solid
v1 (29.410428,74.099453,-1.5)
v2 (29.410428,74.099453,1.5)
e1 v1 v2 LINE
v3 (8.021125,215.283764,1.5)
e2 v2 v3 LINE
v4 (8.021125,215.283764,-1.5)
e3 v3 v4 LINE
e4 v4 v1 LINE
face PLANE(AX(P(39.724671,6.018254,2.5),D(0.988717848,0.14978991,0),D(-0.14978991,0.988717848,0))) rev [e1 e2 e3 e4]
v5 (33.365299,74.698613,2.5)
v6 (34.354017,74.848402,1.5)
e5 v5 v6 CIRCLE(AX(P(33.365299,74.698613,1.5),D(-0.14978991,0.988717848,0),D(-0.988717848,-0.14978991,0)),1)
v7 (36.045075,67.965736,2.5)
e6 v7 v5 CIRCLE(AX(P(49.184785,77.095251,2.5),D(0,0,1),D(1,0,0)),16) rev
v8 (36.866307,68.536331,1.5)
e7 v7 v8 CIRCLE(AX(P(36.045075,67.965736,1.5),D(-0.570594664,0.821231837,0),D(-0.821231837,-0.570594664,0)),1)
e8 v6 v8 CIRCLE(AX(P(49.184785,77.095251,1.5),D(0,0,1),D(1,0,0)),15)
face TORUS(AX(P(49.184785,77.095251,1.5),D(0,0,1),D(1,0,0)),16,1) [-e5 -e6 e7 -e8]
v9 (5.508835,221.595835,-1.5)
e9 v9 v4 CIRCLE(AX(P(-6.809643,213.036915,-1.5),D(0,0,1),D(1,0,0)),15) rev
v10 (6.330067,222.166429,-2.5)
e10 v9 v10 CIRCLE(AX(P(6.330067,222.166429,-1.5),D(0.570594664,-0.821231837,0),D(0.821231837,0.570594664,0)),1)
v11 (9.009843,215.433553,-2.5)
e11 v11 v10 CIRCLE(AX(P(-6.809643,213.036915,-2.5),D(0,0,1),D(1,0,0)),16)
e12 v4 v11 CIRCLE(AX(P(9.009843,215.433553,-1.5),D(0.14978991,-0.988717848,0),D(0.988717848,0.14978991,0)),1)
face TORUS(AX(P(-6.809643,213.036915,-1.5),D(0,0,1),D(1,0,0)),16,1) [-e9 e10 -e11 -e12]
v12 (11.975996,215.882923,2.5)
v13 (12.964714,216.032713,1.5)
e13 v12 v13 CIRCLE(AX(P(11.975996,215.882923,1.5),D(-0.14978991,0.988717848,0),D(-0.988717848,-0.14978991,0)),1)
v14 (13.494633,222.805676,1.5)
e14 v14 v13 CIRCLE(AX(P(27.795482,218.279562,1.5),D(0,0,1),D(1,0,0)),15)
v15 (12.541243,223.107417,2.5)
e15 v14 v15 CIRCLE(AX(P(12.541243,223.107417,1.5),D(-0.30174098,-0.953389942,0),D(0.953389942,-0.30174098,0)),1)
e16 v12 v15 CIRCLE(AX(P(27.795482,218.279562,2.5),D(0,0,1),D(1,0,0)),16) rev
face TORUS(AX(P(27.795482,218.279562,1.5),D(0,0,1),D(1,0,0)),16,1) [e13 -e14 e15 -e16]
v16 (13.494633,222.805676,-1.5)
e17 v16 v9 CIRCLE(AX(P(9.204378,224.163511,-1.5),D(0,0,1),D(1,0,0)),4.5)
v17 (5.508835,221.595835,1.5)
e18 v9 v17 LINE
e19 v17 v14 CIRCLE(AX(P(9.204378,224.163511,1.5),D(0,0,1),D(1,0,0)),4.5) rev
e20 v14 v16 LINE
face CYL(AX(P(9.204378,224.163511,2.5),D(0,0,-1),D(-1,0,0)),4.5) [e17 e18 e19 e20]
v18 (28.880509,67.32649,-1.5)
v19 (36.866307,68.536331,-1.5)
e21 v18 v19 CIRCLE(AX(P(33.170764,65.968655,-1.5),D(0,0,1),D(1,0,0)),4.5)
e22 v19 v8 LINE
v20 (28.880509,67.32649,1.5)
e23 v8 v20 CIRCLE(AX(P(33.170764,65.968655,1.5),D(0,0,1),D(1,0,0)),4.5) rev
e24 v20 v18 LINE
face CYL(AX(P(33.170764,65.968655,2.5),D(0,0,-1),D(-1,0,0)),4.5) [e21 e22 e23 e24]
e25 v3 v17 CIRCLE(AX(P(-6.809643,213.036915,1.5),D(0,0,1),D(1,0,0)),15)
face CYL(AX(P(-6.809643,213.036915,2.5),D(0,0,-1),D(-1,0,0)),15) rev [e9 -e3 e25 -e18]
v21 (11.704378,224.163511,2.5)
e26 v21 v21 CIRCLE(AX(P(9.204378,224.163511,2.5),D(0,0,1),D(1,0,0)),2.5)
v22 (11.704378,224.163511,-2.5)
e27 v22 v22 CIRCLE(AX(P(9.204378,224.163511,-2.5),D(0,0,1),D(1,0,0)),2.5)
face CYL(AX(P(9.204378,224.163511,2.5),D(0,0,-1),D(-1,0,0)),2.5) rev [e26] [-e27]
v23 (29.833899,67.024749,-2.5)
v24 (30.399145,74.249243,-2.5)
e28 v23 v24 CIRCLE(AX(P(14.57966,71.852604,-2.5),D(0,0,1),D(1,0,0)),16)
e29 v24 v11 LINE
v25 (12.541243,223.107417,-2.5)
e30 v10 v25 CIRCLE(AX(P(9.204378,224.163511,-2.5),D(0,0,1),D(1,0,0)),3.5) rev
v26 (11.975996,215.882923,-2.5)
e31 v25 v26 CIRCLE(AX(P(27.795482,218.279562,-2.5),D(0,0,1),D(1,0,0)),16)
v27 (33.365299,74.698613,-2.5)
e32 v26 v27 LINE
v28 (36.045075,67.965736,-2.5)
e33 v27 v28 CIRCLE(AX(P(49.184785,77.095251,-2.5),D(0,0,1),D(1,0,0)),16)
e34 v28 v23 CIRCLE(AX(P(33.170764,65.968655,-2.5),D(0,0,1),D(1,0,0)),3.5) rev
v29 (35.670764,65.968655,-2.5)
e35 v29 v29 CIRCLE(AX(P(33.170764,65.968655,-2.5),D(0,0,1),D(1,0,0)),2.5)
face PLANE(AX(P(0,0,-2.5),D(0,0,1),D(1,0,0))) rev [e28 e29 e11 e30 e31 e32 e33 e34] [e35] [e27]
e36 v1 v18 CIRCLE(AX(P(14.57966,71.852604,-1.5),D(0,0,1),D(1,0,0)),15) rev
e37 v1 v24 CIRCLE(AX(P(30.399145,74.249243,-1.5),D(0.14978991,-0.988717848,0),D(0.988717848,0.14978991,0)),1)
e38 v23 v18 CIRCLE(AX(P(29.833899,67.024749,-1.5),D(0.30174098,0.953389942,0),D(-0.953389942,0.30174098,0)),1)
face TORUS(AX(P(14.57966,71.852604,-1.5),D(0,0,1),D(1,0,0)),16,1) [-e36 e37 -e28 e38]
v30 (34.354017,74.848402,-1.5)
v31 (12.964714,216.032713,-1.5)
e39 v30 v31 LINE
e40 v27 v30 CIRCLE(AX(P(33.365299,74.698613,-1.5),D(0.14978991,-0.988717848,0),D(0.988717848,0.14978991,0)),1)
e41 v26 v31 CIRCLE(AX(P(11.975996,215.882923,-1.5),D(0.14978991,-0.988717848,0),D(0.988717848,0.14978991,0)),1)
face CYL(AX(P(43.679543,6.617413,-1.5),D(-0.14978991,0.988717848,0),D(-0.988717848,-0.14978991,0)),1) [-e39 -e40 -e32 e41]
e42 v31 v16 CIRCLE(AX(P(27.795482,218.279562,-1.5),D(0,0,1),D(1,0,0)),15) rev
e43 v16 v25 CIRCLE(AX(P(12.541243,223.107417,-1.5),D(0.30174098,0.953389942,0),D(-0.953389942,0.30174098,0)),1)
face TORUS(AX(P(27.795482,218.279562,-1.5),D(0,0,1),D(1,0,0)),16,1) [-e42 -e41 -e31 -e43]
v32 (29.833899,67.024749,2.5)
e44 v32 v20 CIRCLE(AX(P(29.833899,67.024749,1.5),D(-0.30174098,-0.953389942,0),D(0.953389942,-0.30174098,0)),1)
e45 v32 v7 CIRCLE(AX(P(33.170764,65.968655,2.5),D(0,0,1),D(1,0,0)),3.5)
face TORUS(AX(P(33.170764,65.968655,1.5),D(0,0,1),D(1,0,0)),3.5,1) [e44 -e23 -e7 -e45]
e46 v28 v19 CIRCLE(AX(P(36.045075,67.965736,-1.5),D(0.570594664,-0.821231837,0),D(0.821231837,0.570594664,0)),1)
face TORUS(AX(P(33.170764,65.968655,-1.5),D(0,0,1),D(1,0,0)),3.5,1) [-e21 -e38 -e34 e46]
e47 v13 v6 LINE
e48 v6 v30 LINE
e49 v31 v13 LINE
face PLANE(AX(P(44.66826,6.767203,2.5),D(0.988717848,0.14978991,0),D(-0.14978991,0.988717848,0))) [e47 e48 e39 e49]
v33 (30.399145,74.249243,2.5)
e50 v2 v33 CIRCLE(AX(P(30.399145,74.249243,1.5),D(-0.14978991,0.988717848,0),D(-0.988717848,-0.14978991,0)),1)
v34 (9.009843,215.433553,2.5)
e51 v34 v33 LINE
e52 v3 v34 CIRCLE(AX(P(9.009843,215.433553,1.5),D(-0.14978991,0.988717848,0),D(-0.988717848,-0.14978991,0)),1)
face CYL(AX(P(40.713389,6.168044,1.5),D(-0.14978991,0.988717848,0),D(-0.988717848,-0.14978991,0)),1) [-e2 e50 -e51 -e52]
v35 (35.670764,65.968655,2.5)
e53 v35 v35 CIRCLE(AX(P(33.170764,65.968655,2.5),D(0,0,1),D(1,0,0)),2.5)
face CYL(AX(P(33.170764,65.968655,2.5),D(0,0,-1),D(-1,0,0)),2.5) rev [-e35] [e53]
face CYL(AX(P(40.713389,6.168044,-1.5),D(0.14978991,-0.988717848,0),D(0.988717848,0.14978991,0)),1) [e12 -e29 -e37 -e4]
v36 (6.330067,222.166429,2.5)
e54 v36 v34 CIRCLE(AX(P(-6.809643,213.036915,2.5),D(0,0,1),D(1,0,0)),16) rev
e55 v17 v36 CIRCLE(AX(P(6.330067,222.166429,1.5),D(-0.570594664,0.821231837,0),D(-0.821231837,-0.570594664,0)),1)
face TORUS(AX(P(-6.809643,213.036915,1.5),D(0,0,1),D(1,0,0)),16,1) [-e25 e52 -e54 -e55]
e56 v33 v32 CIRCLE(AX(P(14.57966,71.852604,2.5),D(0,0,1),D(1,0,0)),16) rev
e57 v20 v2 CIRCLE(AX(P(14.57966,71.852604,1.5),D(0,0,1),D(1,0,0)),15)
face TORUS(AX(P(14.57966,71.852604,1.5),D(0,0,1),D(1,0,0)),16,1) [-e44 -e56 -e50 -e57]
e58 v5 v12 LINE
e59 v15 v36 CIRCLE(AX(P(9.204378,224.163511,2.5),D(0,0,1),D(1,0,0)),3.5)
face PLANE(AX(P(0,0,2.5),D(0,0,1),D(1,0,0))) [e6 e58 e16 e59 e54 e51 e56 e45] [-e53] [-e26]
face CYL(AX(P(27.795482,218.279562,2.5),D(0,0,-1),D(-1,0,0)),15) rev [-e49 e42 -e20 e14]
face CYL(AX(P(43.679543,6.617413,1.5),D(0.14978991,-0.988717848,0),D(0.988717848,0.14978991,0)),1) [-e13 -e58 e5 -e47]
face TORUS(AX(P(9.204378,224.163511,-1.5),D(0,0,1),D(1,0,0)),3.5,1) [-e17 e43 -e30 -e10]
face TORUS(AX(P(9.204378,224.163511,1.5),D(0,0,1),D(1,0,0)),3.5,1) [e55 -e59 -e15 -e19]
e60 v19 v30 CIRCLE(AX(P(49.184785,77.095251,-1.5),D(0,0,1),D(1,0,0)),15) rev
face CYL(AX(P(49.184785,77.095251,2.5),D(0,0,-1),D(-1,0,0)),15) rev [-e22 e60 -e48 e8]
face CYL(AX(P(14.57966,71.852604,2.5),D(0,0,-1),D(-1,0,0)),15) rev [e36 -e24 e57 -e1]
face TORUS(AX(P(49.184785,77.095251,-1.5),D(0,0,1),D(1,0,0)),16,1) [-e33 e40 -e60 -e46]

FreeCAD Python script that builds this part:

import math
import FreeCAD as App
import Part
import Sketcher

V = App.Vector


def edges_at(feature, points):
    """Names of the edges that pass closest to the given points."""
    edges = feature.Shape.Edges
    near = lambda p: min(range(len(edges)), key=lambda i: edges[i].distToShape(Part.Vertex(*p))[0])
    return sorted({f"Edge{near(p) + 1}" for p in points})

doc = App.newDocument("Part")
body = doc.addObject("PartDesign::Body", "Body")

# Sketch on XY plane
sketch1 = body.newObject("Sketcher::SketchObject", "Sketch")
sketch1.AttachmentSupport = (doc.getObject("XY_Plane"), [""])
sketch1.MapMode = "FlatFace"
sketch1.addGeometry([
    Part.ArcOfCircle(Part.Circle(V(33.17, 65.97, 0), V(0, 0, 1), 2.5), math.radians(99), math.radians(189)),  # 0
    Part.LineSegment(V(32.8, 68.44, 0), V(9.58, 221.69, 0)),  # 1
    Part.ArcOfCircle(Part.Circle(V(9.2, 224.16, 0), V(0, 0, 1), 2.5), math.radians(-171), math.radians(-81)),  # 2
    Part.LineSegment(V(6.73, 223.79, 0), V(7.29, 220.09, 0)),  # 3
    Part.LineSegment(V(7.29, 220.09, 0), V(30.14, 69.29, 0)),  # 4
    Part.LineSegment(V(30.14, 69.29, 0), V(30.7, 65.59, 0)),  # 5
    Part.LineSegment(V(9.58, 221.69, 0), V(32.8, 68.44, 0)),  # 6
    Part.ArcOfCircle(Part.Circle(V(33.17, 65.97, 0), V(0, 0, 1), 2.5), math.radians(9), math.radians(99)),  # 7
    Part.LineSegment(V(35.64, 66.34, 0), V(35.08, 70.04, 0)),  # 8
    Part.LineSegment(V(35.08, 70.04, 0), V(12.24, 220.84, 0)),  # 9
    Part.LineSegment(V(12.24, 220.84, 0), V(11.68, 224.54, 0)),  # 10
    Part.ArcOfCircle(Part.Circle(V(9.2, 224.16, 0), V(0, 0, 1), 2.5), math.radians(0), math.radians(8.61)),  # 11
    Part.ArcOfCircle(Part.Circle(V(9.2, 224.16, 0), V(0, 0, 1), 2.5), math.radians(-81), math.radians(0)),  # 12
    Part.LineSegment(V(35.08, 70.04, 0), V(35.64, 66.34, 0)),  # 13
    Part.ArcOfCircle(Part.Circle(V(33.17, 65.97, 0), V(0, 0, 1), 2.5), math.radians(0), math.radians(8.61)),  # 14
    Part.ArcOfCircle(Part.Circle(V(33.17, 65.97, 0), V(0, 0, 1), 2.5), math.radians(-171), math.radians(0)),  # 15
    Part.LineSegment(V(30.7, 65.59, 0), V(30.14, 69.29, 0)),  # 16
    Part.ArcOfCircle(Part.Circle(V(33.17, 65.97, 0), V(0, 0, 1), 4.5), math.radians(132), math.radians(425)),  # 17
    Part.LineSegment(V(7.29, 220.09, 0), V(6.73, 223.79, 0)),  # 18
    Part.ArcOfCircle(Part.Circle(V(9.2, 224.16, 0), V(0, 0, 1), 2.5), math.radians(9), math.radians(189)),  # 19
    Part.LineSegment(V(11.68, 224.54, 0), V(12.24, 220.84, 0)),  # 20
    Part.ArcOfCircle(Part.Circle(V(9.2, 224.16, 0), V(0, 0, 1), 4.5), math.radians(-48), math.radians(245)),  # 21
], False)
sketch1.addConstraint([
    Sketcher.Constraint("Coincident", 0, 1, 1, 1),
    Sketcher.Constraint("Coincident", 1, 2, 2, 2),
    Sketcher.Constraint("Tangent", 2, 1, 3, 1),
    Sketcher.Constraint("Coincident", 3, 2, 4, 1),
    Sketcher.Constraint("Coincident", 4, 2, 5, 1),
    Sketcher.Constraint("Tangent", 5, 2, 0, 2),
    Sketcher.Constraint("Coincident", 6, 2, 7, 2),
    Sketcher.Constraint("Tangent", 7, 1, 8, 1),
    Sketcher.Constraint("Coincident", 8, 2, 9, 1),
    Sketcher.Constraint("Coincident", 9, 2, 10, 1),
    Sketcher.Constraint("Tangent", 10, 2, 11, 2),
    Sketcher.Constraint("Tangent", 11, 1, 12, 2),
    Sketcher.Constraint("Coincident", 12, 1, 6, 1),
    Sketcher.Constraint("Tangent", 13, 2, 14, 2),
    Sketcher.Constraint("Tangent", 14, 1, 15, 2),
    Sketcher.Constraint("Tangent", 15, 1, 16, 1),
    Sketcher.Constraint("Coincident", 16, 2, 17, 1),
    Sketcher.Constraint("Coincident", 17, 2, 13, 1),
    Sketcher.Constraint("Tangent", 18, 2, 19, 2),
    Sketcher.Constraint("Tangent", 19, 1, 20, 1),
    Sketcher.Constraint("Coincident", 20, 2, 21, 1),
    Sketcher.Constraint("Coincident", 21, 2, 18, 1),
    Sketcher.Constraint("Coincident", 7, 3, 0, 3),
    Sketcher.Constraint("Coincident", 11, 3, 2, 3),
    Sketcher.Constraint("Coincident", 14, 3, 0, 3),
    Sketcher.Constraint("Coincident", 17, 3, 0, 3),
    Sketcher.Constraint("Coincident", 19, 3, 2, 3),
    Sketcher.Constraint("Coincident", 21, 3, 2, 3),
    Sketcher.Constraint("Coincident", 6, 2, 0, 1),
    Sketcher.Constraint("Coincident", 12, 1, 1, 2),
    Sketcher.Constraint("Coincident", 13, 2, 7, 1),
    Sketcher.Constraint("Coincident", 15, 1, 5, 2),
    Sketcher.Constraint("Coincident", 18, 2, 2, 1),
    Sketcher.Constraint("Coincident", 19, 1, 10, 2),
    Sketcher.Constraint("Equal", 0, 2),
    Sketcher.Constraint("Equal", 17, 21),
    Sketcher.Constraint("Parallel", 1, 3),
    Sketcher.Constraint("Parallel", 3, 4),
    Sketcher.Constraint("Parallel", 4, 5),
    Sketcher.Constraint("Parallel", 6, 8),
    Sketcher.Constraint("Parallel", 8, 9),
    Sketcher.Constraint("Horizontal", 21, 3, 11, 1),
    Sketcher.Constraint("Horizontal", 17, 3, 14, 1),
    Sketcher.Constraint("Equal", 3, 5),
    Sketcher.Constraint("Equal", 5, 8),
    Sketcher.Constraint("Equal", 4, 9),
    Sketcher.Constraint("Equal", 10, 13),
    Sketcher.Constraint("Radius", 0, 2.5),
    Sketcher.Constraint("Radius", 17, 4.5),
    Sketcher.Constraint("Distance", 1, 155.0),
    Sketcher.Constraint("DistanceX", -1, 1, 2, 3, 9.204378),
    Sketcher.Constraint("DistanceY", -1, 1, 2, 3, 224.163511),
    Sketcher.Constraint("DistanceX", -1, 1, 0, 1, 32.796289),
    Sketcher.Constraint("DistanceX", -1, 1, 5, 2, 30.698969),
])
pad1 = body.newObject("PartDesign::Pad", "Pad")
pad1.Profile = sketch1
pad1.Length = 5
pad1.Midplane = True
doc.recompute()

fillet = body.newObject("PartDesign::Fillet", "Fillet")
fillet.Base = (pad1, edges_at(pad1, [
    (35.082, 70.043, -1.25),
    (30.139, 69.294, -1.25),
    (7.293, 220.09, -1.25),
    (12.237, 220.839, -1.25),
]))
fillet.Radius = 15
doc.recompute()

fillet2 = body.newObject("PartDesign::Fillet", "Fillet001")
fillet2.Base = (fillet, edges_at(fillet, [
    (33.845, 61.519, -2.5),
    (33.845, 61.519, 2.5),
    (18.716, 144.692, -2.5),
    (18.716, 144.692, 2.5),
    (23.659, 145.441, -2.5),
    (23.659, 145.441, 2.5),
    (8.53, 228.613, -2.5),
    (8.53, 228.613, 2.5),
    (29.534, 70.683, -2.5),
    (29.534, 70.683, 2.5),
    (35.248, 71.548, -2.5),
    (35.248, 71.548, 2.5),
    (12.841, 219.45, -2.5),
    (12.841, 219.45, 2.5),
    (7.127, 218.584, -2.5),
    (7.127, 218.584, 2.5),
]))
fillet2.Radius = 1

doc.recompute()
